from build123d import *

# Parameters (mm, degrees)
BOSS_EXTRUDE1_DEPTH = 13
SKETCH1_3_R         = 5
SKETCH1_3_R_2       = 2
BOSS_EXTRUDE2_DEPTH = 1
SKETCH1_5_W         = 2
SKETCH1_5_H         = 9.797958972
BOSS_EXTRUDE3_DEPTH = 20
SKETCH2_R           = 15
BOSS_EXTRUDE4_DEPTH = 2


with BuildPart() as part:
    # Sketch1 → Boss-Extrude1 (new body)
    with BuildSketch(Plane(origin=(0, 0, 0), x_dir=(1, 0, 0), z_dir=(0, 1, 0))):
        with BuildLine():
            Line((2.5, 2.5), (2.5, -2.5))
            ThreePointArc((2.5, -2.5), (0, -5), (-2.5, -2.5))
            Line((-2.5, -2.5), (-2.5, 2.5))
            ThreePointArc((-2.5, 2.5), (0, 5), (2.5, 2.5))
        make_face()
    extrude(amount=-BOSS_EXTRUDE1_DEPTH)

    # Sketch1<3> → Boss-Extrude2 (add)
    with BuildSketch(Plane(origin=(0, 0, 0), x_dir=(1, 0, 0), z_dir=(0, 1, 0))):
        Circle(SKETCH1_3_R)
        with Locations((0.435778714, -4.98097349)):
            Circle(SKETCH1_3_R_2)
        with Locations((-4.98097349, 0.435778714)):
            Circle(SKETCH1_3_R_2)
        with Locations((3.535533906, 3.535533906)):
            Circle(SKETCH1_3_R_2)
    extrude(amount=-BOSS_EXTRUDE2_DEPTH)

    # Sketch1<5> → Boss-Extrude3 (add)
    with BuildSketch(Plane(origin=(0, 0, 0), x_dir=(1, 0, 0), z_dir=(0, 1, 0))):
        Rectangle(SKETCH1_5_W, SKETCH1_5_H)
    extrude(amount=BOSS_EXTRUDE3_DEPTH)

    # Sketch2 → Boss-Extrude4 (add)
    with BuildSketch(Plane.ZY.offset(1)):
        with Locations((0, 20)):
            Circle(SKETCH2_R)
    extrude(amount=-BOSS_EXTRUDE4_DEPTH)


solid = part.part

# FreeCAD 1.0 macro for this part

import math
import FreeCAD as App
import Part
import Sketcher
from FreeCAD import Vector
Q = App.Units.Quantity

doc = App.newDocument("Part")
body = doc.addObject("PartDesign::Body", "Body")

# Sketch on XZ plane
sketch1 = body.newObject("Sketcher::SketchObject", "Sketch")
sketch1.AttachmentSupport = (doc.getObject("XZ_Plane"), [""])
sketch1.MapMode = "FlatFace"
sketch1.addGeometry(Part.LineSegment(Vector(2.5, 2.5, 0), Vector(2.5, -2.5, 0)), False)
sketch1.addGeometry(Part.ArcOfCircle(Part.Circle(Vector(0, -2.5, 0), Vector(0, 0, 1), 2.5), math.radians(180), math.radians(360)), False)
sketch1.addGeometry(Part.LineSegment(Vector(-2.5, -2.5, 0), Vector(-2.5, 2.5, 0)), False)
sketch1.addGeometry(Part.ArcOfCircle(Part.Circle(Vector(0, 2.5, 0), Vector(0, 0, 1), 2.5), math.radians(0), math.radians(180)), False)
sketch1.addConstraint(Sketcher.Constraint("Tangent", 0, 2, 1, 2))
sketch1.addConstraint(Sketcher.Constraint("Tangent", 1, 1, 2, 1))
sketch1.addConstraint(Sketcher.Constraint("Tangent", 2, 2, 3, 2))
sketch1.addConstraint(Sketcher.Constraint("Tangent", 3, 1, 0, 1))
sketch1.addConstraint(Sketcher.Constraint("Vertical", 0))
sketch1.addConstraint(Sketcher.Constraint("Vertical", 2))
sketch1.addConstraint(Sketcher.Constraint("Symmetric", 1, 3, 3, 3, -1, 1))
sketch1.addConstraint(Sketcher.Constraint("Radius", 1, Q("2.5 mm")))
sketch1.addConstraint(Sketcher.Constraint("DistanceY", 0, 2, 0, 1, Q("5 mm")))
pad1 = body.newObject("PartDesign::Pad", "Pad")
pad1.Profile = sketch1
pad1.Length = 13

# Sketch on XZ plane
sketch2 = body.newObject("Sketcher::SketchObject", "Sketch001")
sketch2.AttachmentSupport = (doc.getObject("XZ_Plane"), [""])
sketch2.MapMode = "FlatFace"
sketch2.addGeometry(Part.ArcOfCircle(Part.Circle(Vector(0, 0, 0), Vector(0, 0, 1), 5), math.radians(-152), math.radians(-68)), False)
sketch2.addGeometry(Part.ArcOfCircle(Part.Circle(Vector(-5, -0.4, 0), Vector(0, 0, 1), 2), math.radians(83), math.radians(287)), False)
sketch2.addGeometry(Part.ArcOfCircle(Part.Circle(Vector(0, 0, 0), Vector(0, 0, 1), 5), math.radians(108), math.radians(162)), False)
sketch2.addGeometry(Part.ArcOfCircle(Part.Circle(Vector(0.4, 5, 0), Vector(0, 0, 1), 2), math.radians(-17), math.radians(187)), False)
sketch2.addGeometry(Part.ArcOfCircle(Part.Circle(Vector(0, 0, 0), Vector(0, 0, 1), 5), math.radians(-22), math.radians(62)), False)
sketch2.addGeometry(Part.ArcOfCircle(Part.Circle(Vector(3.5, -3.5, 0), Vector(0, 0, 1), 2), math.radians(-147), math.radians(57)), False)
sketch2.addConstraint(Sketcher.Constraint("Coincident", 0, 1, 1, 2))
sketch2.addConstraint(Sketcher.Constraint("Coincident", 1, 1, 2, 2))
sketch2.addConstraint(Sketcher.Constraint("Coincident", 2, 1, 3, 2))
sketch2.addConstraint(Sketcher.Constraint("Coincident", 3, 1, 4, 2))
sketch2.addConstraint(Sketcher.Constraint("Coincident", 4, 1, 5, 2))
sketch2.addConstraint(Sketcher.Constraint("Coincident", 5, 1, 0, 2))
sketch2.addConstraint(Sketcher.Constraint("Coincident", 0, 3, -1, 1))
sketch2.addConstraint(Sketcher.Constraint("Coincident", 2, 3, -1, 1))
sketch2.addConstraint(Sketcher.Constraint("Coincident", 4, 3, -1, 1))
sketch2.addConstraint(Sketcher.Constraint("Equal", 0, 2))
sketch2.addConstraint(Sketcher.Constraint("Equal", 1, 3))
sketch2.addConstraint(Sketcher.Constraint("Equal", 2, 4))
sketch2.addConstraint(Sketcher.Constraint("Equal", 3, 5))
sketch2.addConstraint(Sketcher.Constraint("Radius", 0, Q("5 mm")))
sketch2.addConstraint(Sketcher.Constraint("Radius", 1, Q("2 mm")))
sketch2.addConstraint(Sketcher.Constraint("DistanceY", 1, 3, -1, 1, Q("0.435779 mm")))
sketch2.addConstraint(Sketcher.Constraint("DistanceX", -1, 1, 3, 3, Q("0.435779 mm")))
sketch2.addConstraint(Sketcher.Constraint("DistanceY", 0, 1, -1, 1, Q("2.353051 mm")))
sketch2.addConstraint(Sketcher.Constraint("DistanceX", 2, 1, -1, 1, Q("1.551219 mm")))
sketch2.addConstraint(Sketcher.Constraint("DistanceX", -1, 1, 4, 1, Q("4.638332 mm")))
sketch2.addConstraint(Sketcher.Constraint("DistanceX", -1, 1, 5, 1, Q("1.867051 mm")))
pad2 = body.newObject("PartDesign::Pad", "Pad001")
pad2.Profile = sketch2
pad2.Length = 1

# Sketch on XZ plane
sketch3 = body.newObject("Sketcher::SketchObject", "Sketch002")
sketch3.AttachmentSupport = (doc.getObject("XZ_Plane"), [""])
sketch3.MapMode = "FlatFace"
sketch3.addGeometry(Part.LineSegment(Vector(-1, -4.9, 0), Vector(-1, 4.9, 0)), False)
sketch3.addGeometry(Part.LineSegment(Vector(-1, 4.9, 0), Vector(1, 4.9, 0)), False)
sketch3.addGeometry(Part.LineSegment(Vector(1, 4.9, 0), Vector(1, -4.9, 0)), False)
sketch3.addGeometry(Part.LineSegment(Vector(1, -4.9, 0), Vector(-1, -4.9, 0)), False)
sketch3.addConstraint(Sketcher.Constraint("Coincident", 0, 2, 1, 1))
sketch3.addConstraint(Sketcher.Constraint("Coincident", 1, 2, 2, 1))
sketch3.addConstraint(Sketcher.Constraint("Coincident", 2, 2, 3, 1))
sketch3.addConstraint(Sketcher.Constraint("Coincident", 3, 2, 0, 1))
sketch3.addConstraint(Sketcher.Constraint("Vertical", 0))
sketch3.addConstraint(Sketcher.Constraint("Horizontal", 1))
sketch3.addConstraint(Sketcher.Constraint("Vertical", 2))
sketch3.addConstraint(Sketcher.Constraint("Horizontal", 3))
sketch3.addConstraint(Sketcher.Constraint("Symmetric", 0, 2, 2, 2, -1, 1))
sketch3.addConstraint(Sketcher.Constraint("DistanceX", 1, 1, 1, 2, Q("2 mm")))
sketch3.addConstraint(Sketcher.Constraint("DistanceY", 0, 1, 0, 2, Q("9.797959 mm")))
pad3 = body.newObject("PartDesign::Pad", "Pad002")
pad3.Profile = sketch3
pad3.Length = 20
pad3.Reversed = True

# Sketch on YZ plane
sketch4 = body.newObject("Sketcher::SketchObject", "Sketch003")
sketch4.AttachmentSupport = (doc.getObject("YZ_Plane"), [""])
sketch4.MapMode = "FlatFace"
sketch4.AttachmentOffset = App.Placement(Vector(0, 0, -1), App.Rotation())
sketch4.addGeometry(Part.Circle(Vector(20, 0, 0), Vector(0, 0, 1), 15), False)
sketch4.addConstraint(Sketcher.Constraint("PointOnObject", 0, 3, -1))
sketch4.addConstraint(Sketcher.Constraint("Diameter", 0, Q("30 mm")))
sketch4.addConstraint(Sketcher.Constraint("DistanceX", -1, 1, 0, 3, Q("20 mm")))
pad4 = body.newObject("PartDesign::Pad", "Pad003")
pad4.Profile = sketch4
pad4.Length = 2

doc.recompute()
